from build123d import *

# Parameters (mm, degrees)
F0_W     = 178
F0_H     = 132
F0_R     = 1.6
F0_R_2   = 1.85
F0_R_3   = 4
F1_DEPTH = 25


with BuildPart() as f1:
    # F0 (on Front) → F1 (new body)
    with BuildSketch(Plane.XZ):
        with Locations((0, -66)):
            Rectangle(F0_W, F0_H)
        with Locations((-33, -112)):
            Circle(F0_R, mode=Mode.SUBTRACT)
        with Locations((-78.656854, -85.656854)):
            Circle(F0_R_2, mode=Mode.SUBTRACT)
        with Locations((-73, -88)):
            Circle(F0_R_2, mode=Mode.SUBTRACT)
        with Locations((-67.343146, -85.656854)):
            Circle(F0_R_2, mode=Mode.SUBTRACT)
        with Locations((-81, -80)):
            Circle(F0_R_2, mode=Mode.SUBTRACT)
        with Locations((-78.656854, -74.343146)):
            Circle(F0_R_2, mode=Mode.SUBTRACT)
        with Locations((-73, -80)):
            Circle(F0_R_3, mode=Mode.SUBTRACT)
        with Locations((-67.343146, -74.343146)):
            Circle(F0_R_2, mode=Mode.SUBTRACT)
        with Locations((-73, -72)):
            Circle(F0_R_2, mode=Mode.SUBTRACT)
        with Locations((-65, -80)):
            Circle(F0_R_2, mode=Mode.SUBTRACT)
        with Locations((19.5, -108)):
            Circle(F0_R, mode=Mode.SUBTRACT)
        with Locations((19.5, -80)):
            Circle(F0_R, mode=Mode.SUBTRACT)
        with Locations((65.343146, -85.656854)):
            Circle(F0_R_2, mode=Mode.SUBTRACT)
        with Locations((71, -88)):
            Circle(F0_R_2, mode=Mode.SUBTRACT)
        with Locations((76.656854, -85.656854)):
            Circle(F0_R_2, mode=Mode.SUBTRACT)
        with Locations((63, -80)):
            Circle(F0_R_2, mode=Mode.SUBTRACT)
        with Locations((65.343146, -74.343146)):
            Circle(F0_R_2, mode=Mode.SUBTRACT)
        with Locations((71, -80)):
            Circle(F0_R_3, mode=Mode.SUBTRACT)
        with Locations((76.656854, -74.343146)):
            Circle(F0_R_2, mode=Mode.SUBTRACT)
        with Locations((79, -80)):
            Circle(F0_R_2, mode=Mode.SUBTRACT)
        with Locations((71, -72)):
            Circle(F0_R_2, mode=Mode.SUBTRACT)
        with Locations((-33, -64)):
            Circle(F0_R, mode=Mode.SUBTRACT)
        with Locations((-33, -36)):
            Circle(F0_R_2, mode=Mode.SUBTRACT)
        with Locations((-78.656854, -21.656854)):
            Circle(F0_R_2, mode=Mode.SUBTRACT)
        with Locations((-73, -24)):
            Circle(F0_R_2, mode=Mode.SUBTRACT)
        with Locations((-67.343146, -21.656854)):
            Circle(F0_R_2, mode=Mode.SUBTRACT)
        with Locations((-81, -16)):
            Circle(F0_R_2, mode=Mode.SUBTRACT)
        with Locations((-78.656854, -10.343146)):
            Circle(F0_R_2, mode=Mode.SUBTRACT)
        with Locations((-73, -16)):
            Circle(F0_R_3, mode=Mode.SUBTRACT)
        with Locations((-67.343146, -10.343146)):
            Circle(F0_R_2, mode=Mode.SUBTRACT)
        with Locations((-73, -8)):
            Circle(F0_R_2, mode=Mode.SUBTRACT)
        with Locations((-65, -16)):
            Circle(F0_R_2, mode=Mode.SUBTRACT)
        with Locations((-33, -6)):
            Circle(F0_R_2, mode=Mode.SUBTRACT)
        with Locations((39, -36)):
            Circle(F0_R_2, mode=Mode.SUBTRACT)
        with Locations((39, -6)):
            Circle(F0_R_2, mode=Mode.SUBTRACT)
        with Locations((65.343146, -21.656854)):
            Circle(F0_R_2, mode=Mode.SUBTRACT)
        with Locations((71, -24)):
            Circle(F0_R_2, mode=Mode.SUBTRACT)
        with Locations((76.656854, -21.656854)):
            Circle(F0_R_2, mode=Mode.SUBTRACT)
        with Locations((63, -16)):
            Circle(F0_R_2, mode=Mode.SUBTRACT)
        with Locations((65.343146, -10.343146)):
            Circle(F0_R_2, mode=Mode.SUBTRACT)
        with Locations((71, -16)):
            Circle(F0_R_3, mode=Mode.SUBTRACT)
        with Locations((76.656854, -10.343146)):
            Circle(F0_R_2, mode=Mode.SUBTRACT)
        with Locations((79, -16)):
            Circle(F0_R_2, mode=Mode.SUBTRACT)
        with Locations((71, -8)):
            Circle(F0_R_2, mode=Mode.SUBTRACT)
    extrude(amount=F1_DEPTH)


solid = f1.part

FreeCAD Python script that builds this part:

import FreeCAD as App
import Part
import Sketcher
from FreeCAD import Vector

doc = App.newDocument("Part")
body = doc.addObject("PartDesign::Body", "Body")

# Sketch on XZ plane
sketch1 = body.newObject("Sketcher::SketchObject", "Sketch")
sketch1.AttachmentSupport = (doc.getObject("XZ_Plane"), [""])
sketch1.MapMode = "FlatFace"
sketch1.addGeometry([
    Part.LineSegment(Vector(-89, 0, 0), Vector(-89, -132, 0)),  # 0
    Part.LineSegment(Vector(-89, -132, 0), Vector(89, -132, 0)),  # 1
    Part.LineSegment(Vector(89, -132, 0), Vector(89, 0, 0)),  # 2
    Part.LineSegment(Vector(89, 0, 0), Vector(-89, 0, 0)),  # 3
    Part.Circle(Vector(-73, -88, 0), Vector(0, 0, 1), 1.9),  # 4
    Part.Circle(Vector(-33, -112, 0), Vector(0, 0, 1), 1.6),  # 5
    Part.Circle(Vector(-78.7, -85.7, 0), Vector(0, 0, 1), 1.9),  # 6
    Part.Circle(Vector(-81, -80, 0), Vector(0, 0, 1), 1.9),  # 7
    Part.Circle(Vector(-73, -80, 0), Vector(0, 0, 1), 4),  # 8
    Part.Circle(Vector(-67.3, -85.7, 0), Vector(0, 0, 1), 1.9),  # 9
    Part.Circle(Vector(-65, -80, 0), Vector(0, 0, 1), 1.9),  # 10
    Part.Circle(Vector(-78.7, -74.3, 0), Vector(0, 0, 1), 1.9),  # 11
    Part.Circle(Vector(-67.3, -74.3, 0), Vector(0, 0, 1), 1.9),  # 12
    Part.Circle(Vector(-73, -72, 0), Vector(0, 0, 1), 1.9),  # 13
    Part.Circle(Vector(-33, -64, 0), Vector(0, 0, 1), 1.6),  # 14
    Part.Circle(Vector(19.5, -108, 0), Vector(0, 0, 1), 1.6),  # 15
    Part.Circle(Vector(71, -88, 0), Vector(0, 0, 1), 1.9),  # 16
    Part.Circle(Vector(19.5, -80, 0), Vector(0, 0, 1), 1.6),  # 17
    Part.Circle(Vector(65.3, -85.7, 0), Vector(0, 0, 1), 1.9),  # 18
    Part.Circle(Vector(63, -80, 0), Vector(0, 0, 1), 1.9),  # 19
    Part.Circle(Vector(76.7, -85.7, 0), Vector(0, 0, 1), 1.9),  # 20
    Part.Circle(Vector(71, -80, 0), Vector(0, 0, 1), 4),  # 21
    Part.Circle(Vector(79, -80, 0), Vector(0, 0, 1), 1.9),  # 22
    Part.Circle(Vector(65.3, -74.3, 0), Vector(0, 0, 1), 1.9),  # 23
    Part.Circle(Vector(76.7, -74.3, 0), Vector(0, 0, 1), 1.9),  # 24
    Part.Circle(Vector(71, -72, 0), Vector(0, 0, 1), 1.9),  # 25
    Part.Circle(Vector(-33, -36, 0), Vector(0, 0, 1), 1.9),  # 26
    Part.Circle(Vector(-78.7, -21.7, 0), Vector(0, 0, 1), 1.9),  # 27
    Part.Circle(Vector(-73, -24, 0), Vector(0, 0, 1), 1.9),  # 28
    Part.Circle(Vector(-67.3, -21.7, 0), Vector(0, 0, 1), 1.9),  # 29
    Part.Circle(Vector(-81, -16, 0), Vector(0, 0, 1), 1.9),  # 30
    Part.Circle(Vector(-73, -16, 0), Vector(0, 0, 1), 4),  # 31
    Part.Circle(Vector(-65, -16, 0), Vector(0, 0, 1), 1.9),  # 32
    Part.Circle(Vector(-78.7, -10.3, 0), Vector(0, 0, 1), 1.9),  # 33
    Part.Circle(Vector(-73, -8, 0), Vector(0, 0, 1), 1.9),  # 34
    Part.Circle(Vector(-67.3, -10.3, 0), Vector(0, 0, 1), 1.9),  # 35
    Part.Circle(Vector(-33, -6, 0), Vector(0, 0, 1), 1.9),  # 36
    Part.Circle(Vector(39, -36, 0), Vector(0, 0, 1), 1.9),  # 37
    Part.Circle(Vector(39, -6, 0), Vector(0, 0, 1), 1.9),  # 38
    Part.Circle(Vector(65.3, -21.7, 0), Vector(0, 0, 1), 1.9),  # 39
    Part.Circle(Vector(71, -24, 0), Vector(0, 0, 1), 1.9),  # 40
    Part.Circle(Vector(76.7, -21.7, 0), Vector(0, 0, 1), 1.9),  # 41
    Part.Circle(Vector(63, -16, 0), Vector(0, 0, 1), 1.9),  # 42
    Part.Circle(Vector(71, -16, 0), Vector(0, 0, 1), 4),  # 43
    Part.Circle(Vector(79, -16, 0), Vector(0, 0, 1), 1.9),  # 44
    Part.Circle(Vector(65.3, -10.3, 0), Vector(0, 0, 1), 1.9),  # 45
    Part.Circle(Vector(71, -8, 0), Vector(0, 0, 1), 1.9),  # 46
    Part.Circle(Vector(76.7, -10.3, 0), Vector(0, 0, 1), 1.9),  # 47
], False)
sketch1.addConstraint([
    Sketcher.Constraint("Coincident", 0, 2, 1, 1),
    Sketcher.Constraint("Coincident", 1, 2, 2, 1),
    Sketcher.Constraint("Coincident", 2, 2, 3, 1),
    Sketcher.Constraint("Coincident", 3, 2, 0, 1),
    Sketcher.Constraint("Vertical", 0),
    Sketcher.Constraint("Horizontal", 1),
    Sketcher.Constraint("Vertical", 2),
    Sketcher.Constraint("Horizontal", 3),
    Sketcher.Constraint("Equal", 4, 6),
    Sketcher.Constraint("Equal", 6, 7),
    Sketcher.Constraint("Equal", 7, 9),
    Sketcher.Constraint("Equal", 9, 10),
    Sketcher.Constraint("Equal", 10, 11),
    Sketcher.Constraint("Equal", 11, 12),
    Sketcher.Constraint("Equal", 12, 13),
    Sketcher.Constraint("Equal", 5, 14),
    Sketcher.Constraint("Equal", 14, 15),
    Sketcher.Constraint("Equal", 13, 16),
    Sketcher.Constraint("Equal", 15, 17),
    Sketcher.Constraint("Equal", 16, 18),
    Sketcher.Constraint("Equal", 18, 19),
    Sketcher.Constraint("Equal", 19, 20),
    Sketcher.Constraint("Equal", 8, 21),
    Sketcher.Constraint("Equal", 20, 22),
    Sketcher.Constraint("Equal", 22, 23),
    Sketcher.Constraint("Equal", 23, 24),
    Sketcher.Constraint("Equal", 24, 25),
    Sketcher.Constraint("Equal", 25, 26),
    Sketcher.Constraint("Equal", 26, 27),
    Sketcher.Constraint("Equal", 27, 28),
    Sketcher.Constraint("Equal", 28, 29),
    Sketcher.Constraint("Equal", 29, 30),
    Sketcher.Constraint("Equal", 21, 31),
    Sketcher.Constraint("Equal", 30, 32),
    Sketcher.Constraint("Equal", 32, 33),
    Sketcher.Constraint("Equal", 33, 34),
    Sketcher.Constraint("Equal", 34, 35),
    Sketcher.Constraint("Equal", 35, 36),
    Sketcher.Constraint("Equal", 36, 37),
    Sketcher.Constraint("Equal", 37, 38),
    Sketcher.Constraint("Equal", 38, 39),
    Sketcher.Constraint("Equal", 39, 40),
    Sketcher.Constraint("Equal", 40, 41),
    Sketcher.Constraint("Equal", 41, 42),
    Sketcher.Constraint("Equal", 31, 43),
    Sketcher.Constraint("Equal", 42, 44),
    Sketcher.Constraint("Equal", 44, 45),
    Sketcher.Constraint("Equal", 45, 46),
    Sketcher.Constraint("Equal", 46, 47),
    Sketcher.Constraint("Symmetric", 2, 2, 3, 2, -1, 1),
    Sketcher.Constraint("Horizontal", 7, 3, 8, 3),
    Sketcher.Constraint("Horizontal", 6, 3, 9, 3),
    Sketcher.Constraint("Horizontal", 8, 3, 10, 3),
    Sketcher.Constraint("Horizontal", 11, 3, 12, 3),
    Sketcher.Constraint("Horizontal", 4, 3, 16, 3),
    Sketcher.Constraint("Horizontal", 10, 3, 17, 3),
    Sketcher.Constraint("Horizontal", 9, 3, 18, 3),
    Sketcher.Constraint("Horizontal", 17, 3, 19, 3),
    Sketcher.Constraint("Horizontal", 18, 3, 20, 3),
    Sketcher.Constraint("Horizontal", 19, 3, 21, 3),
    Sketcher.Constraint("Horizontal", 21, 3, 22, 3),
    Sketcher.Constraint("Horizontal", 12, 3, 23, 3),
    Sketcher.Constraint("Horizontal", 23, 3, 24, 3),
    Sketcher.Constraint("Horizontal", 13, 3, 25, 3),
    Sketcher.Constraint("Horizontal", 27, 3, 29, 3),
    Sketcher.Constraint("Horizontal", 30, 3, 31, 3),
    Sketcher.Constraint("Horizontal", 31, 3, 32, 3),
    Sketcher.Constraint("Horizontal", 33, 3, 35, 3),
    Sketcher.Constraint("Horizontal", 26, 3, 37, 3),
    Sketcher.Constraint("Horizontal", 36, 3, 38, 3),
    Sketcher.Constraint("Horizontal", 29, 3, 39, 3),
    Sketcher.Constraint("Horizontal", 28, 3, 40, 3),
    Sketcher.Constraint("Horizontal", 39, 3, 41, 3),
    Sketcher.Constraint("Horizontal", 32, 3, 42, 3),
    Sketcher.Constraint("Horizontal", 42, 3, 43, 3),
    Sketcher.Constraint("Horizontal", 43, 3, 44, 3),
    Sketcher.Constraint("Horizontal", 35, 3, 45, 3),
    Sketcher.Constraint("Horizontal", 34, 3, 46, 3),
    Sketcher.Constraint("Horizontal", 45, 3, 47, 3),
    Sketcher.Constraint("Vertical", 4, 3, 8, 3),
    Sketcher.Constraint("Vertical", 6, 3, 11, 3),
    Sketcher.Constraint("Vertical", 9, 3, 12, 3),
    Sketcher.Constraint("Vertical", 8, 3, 13, 3),
    Sketcher.Constraint("Vertical", 5, 3, 14, 3),
    Sketcher.Constraint("Vertical", 15, 3, 17, 3),
    Sketcher.Constraint("Vertical", 16, 3, 21, 3),
    Sketcher.Constraint("Vertical", 18, 3, 23, 3),
    Sketcher.Constraint("Vertical", 20, 3, 24, 3),
    Sketcher.Constraint("Vertical", 21, 3, 25, 3),
    Sketcher.Constraint("Vertical", 14, 3, 26, 3),
    Sketcher.Constraint("Vertical", 11, 3, 27, 3),
    Sketcher.Constraint("Vertical", 13, 3, 28, 3),
    Sketcher.Constraint("Vertical", 12, 3, 29, 3),
    Sketcher.Constraint("Vertical", 7, 3, 30, 3),
    Sketcher.Constraint("Vertical", 28, 3, 31, 3),
    Sketcher.Constraint("Vertical", 10, 3, 32, 3),
    Sketcher.Constraint("Vertical", 27, 3, 33, 3),
    Sketcher.Constraint("Vertical", 31, 3, 34, 3),
    Sketcher.Constraint("Vertical", 29, 3, 35, 3),
    Sketcher.Constraint("Vertical", 26, 3, 36, 3),
    Sketcher.Constraint("Vertical", 37, 3, 38, 3),
    Sketcher.Constraint("Vertical", 23, 3, 39, 3),
    Sketcher.Constraint("Vertical", 25, 3, 40, 3),
    Sketcher.Constraint("Vertical", 24, 3, 41, 3),
    Sketcher.Constraint("Vertical", 19, 3, 42, 3),
    Sketcher.Constraint("Vertical", 40, 3, 43, 3),
    Sketcher.Constraint("Vertical", 22, 3, 44, 3),
    Sketcher.Constraint("Vertical", 39, 3, 45, 3),
    Sketcher.Constraint("Vertical", 43, 3, 46, 3),
    Sketcher.Constraint("Vertical", 41, 3, 47, 3),
    Sketcher.Constraint("Diameter", 8, 8.0),
    Sketcher.Constraint("Diameter", 4, 3.7),
    Sketcher.Constraint("Diameter", 5, 3.2),
    Sketcher.Constraint("DistanceX", 1, 1, 1, 2, 178.0),
    Sketcher.Constraint("DistanceY", 0, 2, 0, 1, 132.0),
    Sketcher.Constraint("DistanceX", 4, 3, -1, 1, 73.0),
    Sketcher.Constraint("DistanceY", 4, 3, -1, 1, 88.0),
    Sketcher.Constraint("DistanceX", 5, 3, -1, 1, 33.0),
    Sketcher.Constraint("DistanceY", 5, 3, -1, 1, 112.0),
    Sketcher.Constraint("DistanceX", 7, 3, -1, 1, 81.0),
    Sketcher.Constraint("DistanceY", 7, 3, -1, 1, 80.0),
    Sketcher.Constraint("DistanceX", 10, 3, -1, 1, 65.0),
    Sketcher.Constraint("DistanceY", 13, 3, -1, 1, 72.0),
    Sketcher.Constraint("DistanceY", 14, 3, -1, 1, 64.0),
    Sketcher.Constraint("DistanceY", 15, 3, -1, 1, 108.0),
    Sketcher.Constraint("DistanceX", -1, 1, 16, 3, 71.0),
    Sketcher.Constraint("DistanceX", -1, 1, 19, 3, 63.0),
    Sketcher.Constraint("DistanceX", -1, 1, 22, 3, 79.0),
    Sketcher.Constraint("DistanceY", 26, 3, -1, 1, 36.0),
    Sketcher.Constraint("DistanceY", 28, 3, -1, 1, 24.0),
    Sketcher.Constraint("DistanceY", 30, 3, -1, 1, 16.0),
    Sketcher.Constraint("DistanceY", 34, 3, -1, 1, 8.0),
    Sketcher.Constraint("DistanceY", 36, 3, -1, 1, 6.0),
    Sketcher.Constraint("DistanceX", -1, 1, 37, 3, 39.0),
    Sketcher.Constraint("DistanceX", -1, 1, 15, 3, 19.5),
    Sketcher.Constraint("DistanceX", 6, 3, -1, 1, 78.656854),
    Sketcher.Constraint("DistanceY", 6, 3, -1, 1, 85.656854),
    Sketcher.Constraint("DistanceX", 9, 3, -1, 1, 67.343146),
    Sketcher.Constraint("DistanceY", 11, 3, -1, 1, 74.343146),
    Sketcher.Constraint("DistanceX", -1, 1, 18, 3, 65.343146),
    Sketcher.Constraint("DistanceX", -1, 1, 20, 3, 76.656854),
    Sketcher.Constraint("DistanceY", 27, 3, -1, 1, 21.656854),
    Sketcher.Constraint("DistanceY", 33, 3, -1, 1, 10.343146),
])
pad1 = body.newObject("PartDesign::Pad", "Pad")
pad1.Profile = sketch1
pad1.Length = 25

doc.recompute()
